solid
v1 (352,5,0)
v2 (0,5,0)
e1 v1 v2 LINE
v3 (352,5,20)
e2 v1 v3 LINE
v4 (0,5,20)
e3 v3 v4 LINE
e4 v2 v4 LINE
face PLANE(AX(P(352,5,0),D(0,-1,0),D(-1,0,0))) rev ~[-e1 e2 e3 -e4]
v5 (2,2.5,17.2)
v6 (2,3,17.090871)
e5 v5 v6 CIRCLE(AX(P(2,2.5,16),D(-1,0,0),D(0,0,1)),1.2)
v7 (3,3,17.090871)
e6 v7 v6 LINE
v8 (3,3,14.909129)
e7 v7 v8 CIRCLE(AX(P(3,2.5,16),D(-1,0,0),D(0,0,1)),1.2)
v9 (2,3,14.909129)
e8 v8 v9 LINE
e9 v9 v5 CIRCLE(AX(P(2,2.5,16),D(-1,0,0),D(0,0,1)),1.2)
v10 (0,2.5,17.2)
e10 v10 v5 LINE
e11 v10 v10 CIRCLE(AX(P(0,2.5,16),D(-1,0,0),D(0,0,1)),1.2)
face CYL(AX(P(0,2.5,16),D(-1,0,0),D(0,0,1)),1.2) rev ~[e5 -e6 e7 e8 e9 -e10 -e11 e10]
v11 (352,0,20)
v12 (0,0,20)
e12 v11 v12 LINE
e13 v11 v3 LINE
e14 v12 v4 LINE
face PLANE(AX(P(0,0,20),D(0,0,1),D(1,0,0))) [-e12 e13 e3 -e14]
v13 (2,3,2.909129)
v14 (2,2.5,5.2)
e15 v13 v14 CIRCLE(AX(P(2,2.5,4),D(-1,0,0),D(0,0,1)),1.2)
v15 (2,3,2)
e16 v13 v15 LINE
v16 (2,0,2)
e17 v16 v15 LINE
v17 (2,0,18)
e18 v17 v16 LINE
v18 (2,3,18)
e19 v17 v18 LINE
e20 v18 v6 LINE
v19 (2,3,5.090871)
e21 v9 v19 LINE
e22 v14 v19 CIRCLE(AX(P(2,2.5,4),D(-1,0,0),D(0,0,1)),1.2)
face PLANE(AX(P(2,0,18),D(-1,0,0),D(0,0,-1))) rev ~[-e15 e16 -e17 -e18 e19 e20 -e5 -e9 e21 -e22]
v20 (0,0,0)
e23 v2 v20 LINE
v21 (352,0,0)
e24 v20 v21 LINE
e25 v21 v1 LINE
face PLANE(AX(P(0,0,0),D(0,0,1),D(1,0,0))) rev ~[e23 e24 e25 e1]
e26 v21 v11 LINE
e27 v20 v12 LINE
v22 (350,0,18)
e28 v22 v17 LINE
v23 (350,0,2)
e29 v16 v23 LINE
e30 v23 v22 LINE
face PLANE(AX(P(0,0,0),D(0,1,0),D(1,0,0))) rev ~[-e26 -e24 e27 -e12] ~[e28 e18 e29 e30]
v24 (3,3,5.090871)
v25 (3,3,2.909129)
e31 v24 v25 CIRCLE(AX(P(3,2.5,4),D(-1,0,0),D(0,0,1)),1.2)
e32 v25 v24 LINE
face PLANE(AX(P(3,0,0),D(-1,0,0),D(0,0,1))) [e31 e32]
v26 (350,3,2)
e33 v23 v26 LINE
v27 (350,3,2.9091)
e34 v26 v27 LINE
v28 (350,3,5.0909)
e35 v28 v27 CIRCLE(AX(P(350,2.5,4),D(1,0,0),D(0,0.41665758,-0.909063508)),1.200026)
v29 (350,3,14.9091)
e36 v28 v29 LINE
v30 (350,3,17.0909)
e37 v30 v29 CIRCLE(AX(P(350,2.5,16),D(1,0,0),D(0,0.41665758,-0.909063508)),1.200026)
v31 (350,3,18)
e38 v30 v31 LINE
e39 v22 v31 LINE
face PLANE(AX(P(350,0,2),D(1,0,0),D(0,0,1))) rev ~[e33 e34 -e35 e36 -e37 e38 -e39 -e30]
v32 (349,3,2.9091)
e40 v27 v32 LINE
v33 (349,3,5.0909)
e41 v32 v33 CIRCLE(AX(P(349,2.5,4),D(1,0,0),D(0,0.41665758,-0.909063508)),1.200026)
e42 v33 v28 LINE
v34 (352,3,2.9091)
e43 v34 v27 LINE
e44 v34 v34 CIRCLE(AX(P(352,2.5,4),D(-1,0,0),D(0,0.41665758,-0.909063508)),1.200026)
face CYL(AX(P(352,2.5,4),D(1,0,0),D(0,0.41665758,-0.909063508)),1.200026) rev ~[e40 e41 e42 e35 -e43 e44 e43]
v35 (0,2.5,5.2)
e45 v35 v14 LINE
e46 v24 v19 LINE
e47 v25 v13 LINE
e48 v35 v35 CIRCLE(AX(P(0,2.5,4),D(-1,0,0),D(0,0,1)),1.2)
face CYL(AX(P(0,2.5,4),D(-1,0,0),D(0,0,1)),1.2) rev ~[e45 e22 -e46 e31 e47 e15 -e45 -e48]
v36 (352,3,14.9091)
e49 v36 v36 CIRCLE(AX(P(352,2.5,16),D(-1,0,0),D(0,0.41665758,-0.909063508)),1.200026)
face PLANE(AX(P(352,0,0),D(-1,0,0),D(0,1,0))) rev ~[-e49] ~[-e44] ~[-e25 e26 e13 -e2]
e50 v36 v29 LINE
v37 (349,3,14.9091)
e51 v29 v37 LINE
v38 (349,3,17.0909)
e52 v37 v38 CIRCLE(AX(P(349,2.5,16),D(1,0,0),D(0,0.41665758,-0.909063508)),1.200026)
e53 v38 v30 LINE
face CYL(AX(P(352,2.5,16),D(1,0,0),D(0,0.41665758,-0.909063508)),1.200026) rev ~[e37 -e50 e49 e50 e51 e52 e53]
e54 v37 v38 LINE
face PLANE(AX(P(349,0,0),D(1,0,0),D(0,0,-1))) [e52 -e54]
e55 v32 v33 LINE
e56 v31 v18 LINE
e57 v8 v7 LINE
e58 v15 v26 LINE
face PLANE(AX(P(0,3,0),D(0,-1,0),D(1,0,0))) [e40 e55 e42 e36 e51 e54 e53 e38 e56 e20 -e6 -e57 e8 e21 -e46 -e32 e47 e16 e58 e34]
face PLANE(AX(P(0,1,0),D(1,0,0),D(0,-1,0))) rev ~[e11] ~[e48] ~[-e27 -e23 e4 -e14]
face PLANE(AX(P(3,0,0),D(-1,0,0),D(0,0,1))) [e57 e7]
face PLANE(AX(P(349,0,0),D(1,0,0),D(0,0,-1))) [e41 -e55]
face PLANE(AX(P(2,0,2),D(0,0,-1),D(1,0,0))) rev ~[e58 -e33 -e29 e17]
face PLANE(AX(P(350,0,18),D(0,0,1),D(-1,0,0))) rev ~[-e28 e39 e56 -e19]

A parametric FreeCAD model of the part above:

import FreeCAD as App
import Part
import Sketcher
Q = App.Units.Quantity

doc = App.newDocument("Part")
params = doc.addObject("Spreadsheet::Sheet", "Params")
for row, (alias, value) in enumerate([
    ("sketch1_width", "352 mm"),
    ("sketch1_height", "5 mm"),
    ("pad1_length", "20 mm"),
    ("sketch2_diameter", "2.4 mm"),
    ("pocket1_length", "3 mm"),
    ("sketch3_width", "348 mm"),
    ("sketch3_height", "16 mm"),
    ("pocket2_length", "3 mm"),
    ("sketch4_diameter", "2.4 mm"),
    ("pocket3_length", "3 mm"),
], start=1):
    params.set(f"A{row}", alias)
    params.set(f"B{row}", "=" + value)
    params.setAlias(f"B{row}", alias)

body = doc.addObject("PartDesign::Body", "Body")

sketch1 = body.newObject("Sketcher::SketchObject", "Sketch")
sketch1.AttachmentSupport = (doc.getObject("XY_Plane"), [""])
sketch1.MapMode = "FlatFace"
sketch1.addGeometry([
    Part.LineSegment(App.Vector(0, 5, 0), App.Vector(0, 0, 0)),
    Part.LineSegment(App.Vector(0, 0, 0), App.Vector(352, 0, 0)),
    Part.LineSegment(App.Vector(352, 0, 0), App.Vector(352, 5, 0)),
    Part.LineSegment(App.Vector(352, 5, 0), App.Vector(0, 5, 0)),
], False)
sketch1.addConstraint([
    Sketcher.Constraint("Coincident", 0, 2, 1, 1),
    Sketcher.Constraint("Coincident", 1, 2, 2, 1),
    Sketcher.Constraint("Coincident", 2, 2, 3, 1),
    Sketcher.Constraint("Coincident", 3, 2, 0, 1),
    Sketcher.Constraint("Vertical", 0),
    Sketcher.Constraint("Horizontal", 1),
    Sketcher.Constraint("Vertical", 2),
    Sketcher.Constraint("Horizontal", 3),
    Sketcher.Constraint("Coincident", 0, 2, -1, 1),
    Sketcher.Constraint("DistanceX", 1, 1, 1, 2, Q("352 mm")),
    Sketcher.Constraint("DistanceY", 0, 2, 0, 1, Q("5 mm")),
])
sketch1.setExpression("Constraints[9]", "Params.sketch1_width")
sketch1.setExpression("Constraints[10]", "Params.sketch1_height")
pad1 = body.newObject("PartDesign::Pad", "Pad")
pad1.Profile = sketch1
pad1.setExpression("Length", "Params.pad1_length")

sketch2 = body.newObject("Sketcher::SketchObject", "Sketch001")
sketch2.AttachmentSupport = (doc.getObject("YZ_Plane"), [""])
sketch2.MapMode = "FlatFace"
sketch2.addGeometry([
    Part.Circle(App.Vector(2.5, 4, 0), App.Vector(0, 0, 1), 1.2),
    Part.Circle(App.Vector(2.5, 16, 0), App.Vector(0, 0, 1), 1.2),
], False)
sketch2.addConstraint([
    Sketcher.Constraint("Equal", 0, 1),
    Sketcher.Constraint("Vertical", 0, 3, 1, 3),
    Sketcher.Constraint("Diameter", 0, Q("2.4 mm")),
    Sketcher.Constraint("DistanceY", -1, 1, 0, 3, Q("4 mm")),
    Sketcher.Constraint("DistanceX", -1, 1, 0, 3, Q("2.5 mm")),
    Sketcher.Constraint("DistanceY", -1, 1, 1, 3, Q("16 mm")),
])
sketch2.setExpression("Constraints[2]", "Params.sketch2_diameter")
pocket1 = body.newObject("PartDesign::Pocket", "Pocket")
pocket1.Profile = sketch2
pocket1.setExpression("Length", "Params.pocket1_length")
pocket1.Reversed = True

sketch3 = body.newObject("Sketcher::SketchObject", "Sketch002")
sketch3.AttachmentSupport = (doc.getObject("XZ_Plane"), [""])
sketch3.MapMode = "FlatFace"
sketch3.addGeometry([
    Part.LineSegment(App.Vector(2, 18, 0), App.Vector(2, 2, 0)),
    Part.LineSegment(App.Vector(2, 2, 0), App.Vector(350, 2, 0)),
    Part.LineSegment(App.Vector(350, 2, 0), App.Vector(350, 18, 0)),
    Part.LineSegment(App.Vector(350, 18, 0), App.Vector(2, 18, 0)),
], False)
sketch3.addConstraint([
    Sketcher.Constraint("Coincident", 0, 2, 1, 1),
    Sketcher.Constraint("Coincident", 1, 2, 2, 1),
    Sketcher.Constraint("Coincident", 2, 2, 3, 1),
    Sketcher.Constraint("Coincident", 3, 2, 0, 1),
    Sketcher.Constraint("Vertical", 0),
    Sketcher.Constraint("Horizontal", 1),
    Sketcher.Constraint("Vertical", 2),
    Sketcher.Constraint("Horizontal", 3),
    Sketcher.Constraint("DistanceX", -1, 1, 0, 2, Q("2 mm")),
    Sketcher.Constraint("DistanceY", -1, 1, 0, 2, Q("2 mm")),
    Sketcher.Constraint("DistanceX", 1, 1, 1, 2, Q("348 mm")),
    Sketcher.Constraint("DistanceY", 0, 2, 0, 1, Q("16 mm")),
])
sketch3.setExpression("Constraints[10]", "Params.sketch3_width")
sketch3.setExpression("Constraints[11]", "Params.sketch3_height")
pocket2 = body.newObject("PartDesign::Pocket", "Pocket001")
pocket2.Profile = sketch3
pocket2.setExpression("Length", "Params.pocket2_length")

sketch4 = body.newObject("Sketcher::SketchObject", "Sketch003")
sketch4.AttachmentSupport = (doc.getObject("YZ_Plane"), [""])
sketch4.MapMode = "FlatFace"
sketch4.AttachmentOffset = App.Placement(App.Vector(0, 0, 352), App.Rotation())
sketch4.addGeometry([
    Part.Circle(App.Vector(2.5, 4, 0), App.Vector(0, 0, 1), 1.2),
    Part.Circle(App.Vector(2.5, 16, 0), App.Vector(0, 0, 1), 1.2),
], False)
sketch4.addConstraint([
    Sketcher.Constraint("Equal", 0, 1),
    Sketcher.Constraint("Vertical", 0, 3, 1, 3),
    Sketcher.Constraint("Diameter", 0, Q("2.4 mm")),
    Sketcher.Constraint("DistanceY", -1, 1, 0, 3, Q("4 mm")),
    Sketcher.Constraint("DistanceY", -1, 1, 1, 3, Q("16 mm")),
    Sketcher.Constraint("DistanceX", -1, 1, 0, 3, Q("2.5 mm")),
])
sketch4.setExpression("Constraints[2]", "Params.sketch4_diameter")
pocket3 = body.newObject("PartDesign::Pocket", "Pocket002")
pocket3.Profile = sketch4
pocket3.setExpression("Length", "Params.pocket3_length")

doc.recompute()
